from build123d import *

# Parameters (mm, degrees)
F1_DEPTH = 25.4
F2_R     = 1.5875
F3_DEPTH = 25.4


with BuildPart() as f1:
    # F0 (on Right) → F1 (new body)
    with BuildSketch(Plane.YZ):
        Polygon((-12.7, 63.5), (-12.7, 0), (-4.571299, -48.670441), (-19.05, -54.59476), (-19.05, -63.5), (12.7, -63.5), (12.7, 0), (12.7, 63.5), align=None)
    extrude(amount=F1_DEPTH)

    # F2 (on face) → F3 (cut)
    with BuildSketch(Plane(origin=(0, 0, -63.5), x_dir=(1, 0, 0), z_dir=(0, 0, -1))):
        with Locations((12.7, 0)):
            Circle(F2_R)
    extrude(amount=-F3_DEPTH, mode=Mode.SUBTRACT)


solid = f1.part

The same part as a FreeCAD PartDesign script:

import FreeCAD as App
import Part
import Sketcher

V = App.Vector
Q = App.Units.Quantity

doc = App.newDocument("Part")
body = doc.addObject("PartDesign::Body", "Body")

# Sketch on YZ plane
sketch1 = body.newObject("Sketcher::SketchObject", "Sketch")
sketch1.AttachmentSupport = (doc.getObject("YZ_Plane"), [""])
sketch1.MapMode = "FlatFace"
sketch1.addGeometry(Part.LineSegment(V(-13, 64, 0), V(-13, 0, 0)), False)
sketch1.addGeometry(Part.LineSegment(V(-13, 0, 0), V(-5, -49, 0)), False)
sketch1.addGeometry(Part.LineSegment(V(-5, -49, 0), V(-19, -55, 0)), False)
sketch1.addGeometry(Part.LineSegment(V(-19, -55, 0), V(-19, -64, 0)), False)
sketch1.addGeometry(Part.LineSegment(V(-19, -64, 0), V(13, -64, 0)), False)
sketch1.addGeometry(Part.LineSegment(V(13, -64, 0), V(13, 64, 0)), False)
sketch1.addGeometry(Part.LineSegment(V(13, 64, 0), V(-13, 64, 0)), False)
sketch1.addConstraint(Sketcher.Constraint("Coincident", 0, 2, 1, 1))
sketch1.addConstraint(Sketcher.Constraint("Coincident", 1, 2, 2, 1))
sketch1.addConstraint(Sketcher.Constraint("Coincident", 2, 2, 3, 1))
sketch1.addConstraint(Sketcher.Constraint("Coincident", 3, 2, 4, 1))
sketch1.addConstraint(Sketcher.Constraint("Coincident", 4, 2, 5, 1))
sketch1.addConstraint(Sketcher.Constraint("Coincident", 5, 2, 6, 1))
sketch1.addConstraint(Sketcher.Constraint("Coincident", 6, 2, 0, 1))
sketch1.addConstraint(Sketcher.Constraint("Vertical", 0))
sketch1.addConstraint(Sketcher.Constraint("Vertical", 3))
sketch1.addConstraint(Sketcher.Constraint("Horizontal", 4))
sketch1.addConstraint(Sketcher.Constraint("Vertical", 5))
sketch1.addConstraint(Sketcher.Constraint("Horizontal", 6))
sketch1.addConstraint(Sketcher.Constraint("Symmetric", 4, 2, 6, 2, -1, 1))
sketch1.addConstraint(Sketcher.Constraint("PointOnObject", 0, 2, -1))
sketch1.addConstraint(Sketcher.Constraint("DistanceX", 6, 2, 6, 1, Q("1 in")))
sketch1.addConstraint(Sketcher.Constraint("DistanceY", 5, 1, 5, 2, Q("5 in")))
sketch1.addConstraint(Sketcher.Constraint("DistanceX", 4, 1, 4, 2, Q("1.25 in")))
sketch1.addConstraint(Sketcher.Constraint("DistanceY", 3, 2, 3, 1, Q("0.3506 in")))
sketch1.addConstraint(Sketcher.Constraint("Distance", 1, Q("1.9427 in")))
sketch1.addConstraint(Sketcher.Constraint("Distance", 2, Q("0.6159 in")))
pad1 = body.newObject("PartDesign::Pad", "Pad")
pad1.Profile = sketch1
pad1.Length = Q("1 in")

# Sketch on XY plane
sketch2 = body.newObject("Sketcher::SketchObject", "Sketch001")
sketch2.AttachmentSupport = (doc.getObject("XY_Plane"), [""])
sketch2.MapMode = "FlatFace"
sketch2.AttachmentOffset = App.Placement(V(0, 0, -2.5 * 25.4), App.Rotation())
sketch2.addGeometry(Part.Circle(V(12.7, 0, 0), V(0, 0, 1), 1.6), False)
sketch2.addConstraint(Sketcher.Constraint("PointOnObject", 0, 3, -1))
sketch2.addConstraint(Sketcher.Constraint("Diameter", 0, Q("0.125 in")))
sketch2.addConstraint(Sketcher.Constraint("DistanceX", -1, 1, 0, 3, Q("0.5 in")))
pocket1 = body.newObject("PartDesign::Pocket", "Pocket")
pocket1.Profile = sketch2
pocket1.Length = Q("1 in")
pocket1.Reversed = True

doc.recompute()
